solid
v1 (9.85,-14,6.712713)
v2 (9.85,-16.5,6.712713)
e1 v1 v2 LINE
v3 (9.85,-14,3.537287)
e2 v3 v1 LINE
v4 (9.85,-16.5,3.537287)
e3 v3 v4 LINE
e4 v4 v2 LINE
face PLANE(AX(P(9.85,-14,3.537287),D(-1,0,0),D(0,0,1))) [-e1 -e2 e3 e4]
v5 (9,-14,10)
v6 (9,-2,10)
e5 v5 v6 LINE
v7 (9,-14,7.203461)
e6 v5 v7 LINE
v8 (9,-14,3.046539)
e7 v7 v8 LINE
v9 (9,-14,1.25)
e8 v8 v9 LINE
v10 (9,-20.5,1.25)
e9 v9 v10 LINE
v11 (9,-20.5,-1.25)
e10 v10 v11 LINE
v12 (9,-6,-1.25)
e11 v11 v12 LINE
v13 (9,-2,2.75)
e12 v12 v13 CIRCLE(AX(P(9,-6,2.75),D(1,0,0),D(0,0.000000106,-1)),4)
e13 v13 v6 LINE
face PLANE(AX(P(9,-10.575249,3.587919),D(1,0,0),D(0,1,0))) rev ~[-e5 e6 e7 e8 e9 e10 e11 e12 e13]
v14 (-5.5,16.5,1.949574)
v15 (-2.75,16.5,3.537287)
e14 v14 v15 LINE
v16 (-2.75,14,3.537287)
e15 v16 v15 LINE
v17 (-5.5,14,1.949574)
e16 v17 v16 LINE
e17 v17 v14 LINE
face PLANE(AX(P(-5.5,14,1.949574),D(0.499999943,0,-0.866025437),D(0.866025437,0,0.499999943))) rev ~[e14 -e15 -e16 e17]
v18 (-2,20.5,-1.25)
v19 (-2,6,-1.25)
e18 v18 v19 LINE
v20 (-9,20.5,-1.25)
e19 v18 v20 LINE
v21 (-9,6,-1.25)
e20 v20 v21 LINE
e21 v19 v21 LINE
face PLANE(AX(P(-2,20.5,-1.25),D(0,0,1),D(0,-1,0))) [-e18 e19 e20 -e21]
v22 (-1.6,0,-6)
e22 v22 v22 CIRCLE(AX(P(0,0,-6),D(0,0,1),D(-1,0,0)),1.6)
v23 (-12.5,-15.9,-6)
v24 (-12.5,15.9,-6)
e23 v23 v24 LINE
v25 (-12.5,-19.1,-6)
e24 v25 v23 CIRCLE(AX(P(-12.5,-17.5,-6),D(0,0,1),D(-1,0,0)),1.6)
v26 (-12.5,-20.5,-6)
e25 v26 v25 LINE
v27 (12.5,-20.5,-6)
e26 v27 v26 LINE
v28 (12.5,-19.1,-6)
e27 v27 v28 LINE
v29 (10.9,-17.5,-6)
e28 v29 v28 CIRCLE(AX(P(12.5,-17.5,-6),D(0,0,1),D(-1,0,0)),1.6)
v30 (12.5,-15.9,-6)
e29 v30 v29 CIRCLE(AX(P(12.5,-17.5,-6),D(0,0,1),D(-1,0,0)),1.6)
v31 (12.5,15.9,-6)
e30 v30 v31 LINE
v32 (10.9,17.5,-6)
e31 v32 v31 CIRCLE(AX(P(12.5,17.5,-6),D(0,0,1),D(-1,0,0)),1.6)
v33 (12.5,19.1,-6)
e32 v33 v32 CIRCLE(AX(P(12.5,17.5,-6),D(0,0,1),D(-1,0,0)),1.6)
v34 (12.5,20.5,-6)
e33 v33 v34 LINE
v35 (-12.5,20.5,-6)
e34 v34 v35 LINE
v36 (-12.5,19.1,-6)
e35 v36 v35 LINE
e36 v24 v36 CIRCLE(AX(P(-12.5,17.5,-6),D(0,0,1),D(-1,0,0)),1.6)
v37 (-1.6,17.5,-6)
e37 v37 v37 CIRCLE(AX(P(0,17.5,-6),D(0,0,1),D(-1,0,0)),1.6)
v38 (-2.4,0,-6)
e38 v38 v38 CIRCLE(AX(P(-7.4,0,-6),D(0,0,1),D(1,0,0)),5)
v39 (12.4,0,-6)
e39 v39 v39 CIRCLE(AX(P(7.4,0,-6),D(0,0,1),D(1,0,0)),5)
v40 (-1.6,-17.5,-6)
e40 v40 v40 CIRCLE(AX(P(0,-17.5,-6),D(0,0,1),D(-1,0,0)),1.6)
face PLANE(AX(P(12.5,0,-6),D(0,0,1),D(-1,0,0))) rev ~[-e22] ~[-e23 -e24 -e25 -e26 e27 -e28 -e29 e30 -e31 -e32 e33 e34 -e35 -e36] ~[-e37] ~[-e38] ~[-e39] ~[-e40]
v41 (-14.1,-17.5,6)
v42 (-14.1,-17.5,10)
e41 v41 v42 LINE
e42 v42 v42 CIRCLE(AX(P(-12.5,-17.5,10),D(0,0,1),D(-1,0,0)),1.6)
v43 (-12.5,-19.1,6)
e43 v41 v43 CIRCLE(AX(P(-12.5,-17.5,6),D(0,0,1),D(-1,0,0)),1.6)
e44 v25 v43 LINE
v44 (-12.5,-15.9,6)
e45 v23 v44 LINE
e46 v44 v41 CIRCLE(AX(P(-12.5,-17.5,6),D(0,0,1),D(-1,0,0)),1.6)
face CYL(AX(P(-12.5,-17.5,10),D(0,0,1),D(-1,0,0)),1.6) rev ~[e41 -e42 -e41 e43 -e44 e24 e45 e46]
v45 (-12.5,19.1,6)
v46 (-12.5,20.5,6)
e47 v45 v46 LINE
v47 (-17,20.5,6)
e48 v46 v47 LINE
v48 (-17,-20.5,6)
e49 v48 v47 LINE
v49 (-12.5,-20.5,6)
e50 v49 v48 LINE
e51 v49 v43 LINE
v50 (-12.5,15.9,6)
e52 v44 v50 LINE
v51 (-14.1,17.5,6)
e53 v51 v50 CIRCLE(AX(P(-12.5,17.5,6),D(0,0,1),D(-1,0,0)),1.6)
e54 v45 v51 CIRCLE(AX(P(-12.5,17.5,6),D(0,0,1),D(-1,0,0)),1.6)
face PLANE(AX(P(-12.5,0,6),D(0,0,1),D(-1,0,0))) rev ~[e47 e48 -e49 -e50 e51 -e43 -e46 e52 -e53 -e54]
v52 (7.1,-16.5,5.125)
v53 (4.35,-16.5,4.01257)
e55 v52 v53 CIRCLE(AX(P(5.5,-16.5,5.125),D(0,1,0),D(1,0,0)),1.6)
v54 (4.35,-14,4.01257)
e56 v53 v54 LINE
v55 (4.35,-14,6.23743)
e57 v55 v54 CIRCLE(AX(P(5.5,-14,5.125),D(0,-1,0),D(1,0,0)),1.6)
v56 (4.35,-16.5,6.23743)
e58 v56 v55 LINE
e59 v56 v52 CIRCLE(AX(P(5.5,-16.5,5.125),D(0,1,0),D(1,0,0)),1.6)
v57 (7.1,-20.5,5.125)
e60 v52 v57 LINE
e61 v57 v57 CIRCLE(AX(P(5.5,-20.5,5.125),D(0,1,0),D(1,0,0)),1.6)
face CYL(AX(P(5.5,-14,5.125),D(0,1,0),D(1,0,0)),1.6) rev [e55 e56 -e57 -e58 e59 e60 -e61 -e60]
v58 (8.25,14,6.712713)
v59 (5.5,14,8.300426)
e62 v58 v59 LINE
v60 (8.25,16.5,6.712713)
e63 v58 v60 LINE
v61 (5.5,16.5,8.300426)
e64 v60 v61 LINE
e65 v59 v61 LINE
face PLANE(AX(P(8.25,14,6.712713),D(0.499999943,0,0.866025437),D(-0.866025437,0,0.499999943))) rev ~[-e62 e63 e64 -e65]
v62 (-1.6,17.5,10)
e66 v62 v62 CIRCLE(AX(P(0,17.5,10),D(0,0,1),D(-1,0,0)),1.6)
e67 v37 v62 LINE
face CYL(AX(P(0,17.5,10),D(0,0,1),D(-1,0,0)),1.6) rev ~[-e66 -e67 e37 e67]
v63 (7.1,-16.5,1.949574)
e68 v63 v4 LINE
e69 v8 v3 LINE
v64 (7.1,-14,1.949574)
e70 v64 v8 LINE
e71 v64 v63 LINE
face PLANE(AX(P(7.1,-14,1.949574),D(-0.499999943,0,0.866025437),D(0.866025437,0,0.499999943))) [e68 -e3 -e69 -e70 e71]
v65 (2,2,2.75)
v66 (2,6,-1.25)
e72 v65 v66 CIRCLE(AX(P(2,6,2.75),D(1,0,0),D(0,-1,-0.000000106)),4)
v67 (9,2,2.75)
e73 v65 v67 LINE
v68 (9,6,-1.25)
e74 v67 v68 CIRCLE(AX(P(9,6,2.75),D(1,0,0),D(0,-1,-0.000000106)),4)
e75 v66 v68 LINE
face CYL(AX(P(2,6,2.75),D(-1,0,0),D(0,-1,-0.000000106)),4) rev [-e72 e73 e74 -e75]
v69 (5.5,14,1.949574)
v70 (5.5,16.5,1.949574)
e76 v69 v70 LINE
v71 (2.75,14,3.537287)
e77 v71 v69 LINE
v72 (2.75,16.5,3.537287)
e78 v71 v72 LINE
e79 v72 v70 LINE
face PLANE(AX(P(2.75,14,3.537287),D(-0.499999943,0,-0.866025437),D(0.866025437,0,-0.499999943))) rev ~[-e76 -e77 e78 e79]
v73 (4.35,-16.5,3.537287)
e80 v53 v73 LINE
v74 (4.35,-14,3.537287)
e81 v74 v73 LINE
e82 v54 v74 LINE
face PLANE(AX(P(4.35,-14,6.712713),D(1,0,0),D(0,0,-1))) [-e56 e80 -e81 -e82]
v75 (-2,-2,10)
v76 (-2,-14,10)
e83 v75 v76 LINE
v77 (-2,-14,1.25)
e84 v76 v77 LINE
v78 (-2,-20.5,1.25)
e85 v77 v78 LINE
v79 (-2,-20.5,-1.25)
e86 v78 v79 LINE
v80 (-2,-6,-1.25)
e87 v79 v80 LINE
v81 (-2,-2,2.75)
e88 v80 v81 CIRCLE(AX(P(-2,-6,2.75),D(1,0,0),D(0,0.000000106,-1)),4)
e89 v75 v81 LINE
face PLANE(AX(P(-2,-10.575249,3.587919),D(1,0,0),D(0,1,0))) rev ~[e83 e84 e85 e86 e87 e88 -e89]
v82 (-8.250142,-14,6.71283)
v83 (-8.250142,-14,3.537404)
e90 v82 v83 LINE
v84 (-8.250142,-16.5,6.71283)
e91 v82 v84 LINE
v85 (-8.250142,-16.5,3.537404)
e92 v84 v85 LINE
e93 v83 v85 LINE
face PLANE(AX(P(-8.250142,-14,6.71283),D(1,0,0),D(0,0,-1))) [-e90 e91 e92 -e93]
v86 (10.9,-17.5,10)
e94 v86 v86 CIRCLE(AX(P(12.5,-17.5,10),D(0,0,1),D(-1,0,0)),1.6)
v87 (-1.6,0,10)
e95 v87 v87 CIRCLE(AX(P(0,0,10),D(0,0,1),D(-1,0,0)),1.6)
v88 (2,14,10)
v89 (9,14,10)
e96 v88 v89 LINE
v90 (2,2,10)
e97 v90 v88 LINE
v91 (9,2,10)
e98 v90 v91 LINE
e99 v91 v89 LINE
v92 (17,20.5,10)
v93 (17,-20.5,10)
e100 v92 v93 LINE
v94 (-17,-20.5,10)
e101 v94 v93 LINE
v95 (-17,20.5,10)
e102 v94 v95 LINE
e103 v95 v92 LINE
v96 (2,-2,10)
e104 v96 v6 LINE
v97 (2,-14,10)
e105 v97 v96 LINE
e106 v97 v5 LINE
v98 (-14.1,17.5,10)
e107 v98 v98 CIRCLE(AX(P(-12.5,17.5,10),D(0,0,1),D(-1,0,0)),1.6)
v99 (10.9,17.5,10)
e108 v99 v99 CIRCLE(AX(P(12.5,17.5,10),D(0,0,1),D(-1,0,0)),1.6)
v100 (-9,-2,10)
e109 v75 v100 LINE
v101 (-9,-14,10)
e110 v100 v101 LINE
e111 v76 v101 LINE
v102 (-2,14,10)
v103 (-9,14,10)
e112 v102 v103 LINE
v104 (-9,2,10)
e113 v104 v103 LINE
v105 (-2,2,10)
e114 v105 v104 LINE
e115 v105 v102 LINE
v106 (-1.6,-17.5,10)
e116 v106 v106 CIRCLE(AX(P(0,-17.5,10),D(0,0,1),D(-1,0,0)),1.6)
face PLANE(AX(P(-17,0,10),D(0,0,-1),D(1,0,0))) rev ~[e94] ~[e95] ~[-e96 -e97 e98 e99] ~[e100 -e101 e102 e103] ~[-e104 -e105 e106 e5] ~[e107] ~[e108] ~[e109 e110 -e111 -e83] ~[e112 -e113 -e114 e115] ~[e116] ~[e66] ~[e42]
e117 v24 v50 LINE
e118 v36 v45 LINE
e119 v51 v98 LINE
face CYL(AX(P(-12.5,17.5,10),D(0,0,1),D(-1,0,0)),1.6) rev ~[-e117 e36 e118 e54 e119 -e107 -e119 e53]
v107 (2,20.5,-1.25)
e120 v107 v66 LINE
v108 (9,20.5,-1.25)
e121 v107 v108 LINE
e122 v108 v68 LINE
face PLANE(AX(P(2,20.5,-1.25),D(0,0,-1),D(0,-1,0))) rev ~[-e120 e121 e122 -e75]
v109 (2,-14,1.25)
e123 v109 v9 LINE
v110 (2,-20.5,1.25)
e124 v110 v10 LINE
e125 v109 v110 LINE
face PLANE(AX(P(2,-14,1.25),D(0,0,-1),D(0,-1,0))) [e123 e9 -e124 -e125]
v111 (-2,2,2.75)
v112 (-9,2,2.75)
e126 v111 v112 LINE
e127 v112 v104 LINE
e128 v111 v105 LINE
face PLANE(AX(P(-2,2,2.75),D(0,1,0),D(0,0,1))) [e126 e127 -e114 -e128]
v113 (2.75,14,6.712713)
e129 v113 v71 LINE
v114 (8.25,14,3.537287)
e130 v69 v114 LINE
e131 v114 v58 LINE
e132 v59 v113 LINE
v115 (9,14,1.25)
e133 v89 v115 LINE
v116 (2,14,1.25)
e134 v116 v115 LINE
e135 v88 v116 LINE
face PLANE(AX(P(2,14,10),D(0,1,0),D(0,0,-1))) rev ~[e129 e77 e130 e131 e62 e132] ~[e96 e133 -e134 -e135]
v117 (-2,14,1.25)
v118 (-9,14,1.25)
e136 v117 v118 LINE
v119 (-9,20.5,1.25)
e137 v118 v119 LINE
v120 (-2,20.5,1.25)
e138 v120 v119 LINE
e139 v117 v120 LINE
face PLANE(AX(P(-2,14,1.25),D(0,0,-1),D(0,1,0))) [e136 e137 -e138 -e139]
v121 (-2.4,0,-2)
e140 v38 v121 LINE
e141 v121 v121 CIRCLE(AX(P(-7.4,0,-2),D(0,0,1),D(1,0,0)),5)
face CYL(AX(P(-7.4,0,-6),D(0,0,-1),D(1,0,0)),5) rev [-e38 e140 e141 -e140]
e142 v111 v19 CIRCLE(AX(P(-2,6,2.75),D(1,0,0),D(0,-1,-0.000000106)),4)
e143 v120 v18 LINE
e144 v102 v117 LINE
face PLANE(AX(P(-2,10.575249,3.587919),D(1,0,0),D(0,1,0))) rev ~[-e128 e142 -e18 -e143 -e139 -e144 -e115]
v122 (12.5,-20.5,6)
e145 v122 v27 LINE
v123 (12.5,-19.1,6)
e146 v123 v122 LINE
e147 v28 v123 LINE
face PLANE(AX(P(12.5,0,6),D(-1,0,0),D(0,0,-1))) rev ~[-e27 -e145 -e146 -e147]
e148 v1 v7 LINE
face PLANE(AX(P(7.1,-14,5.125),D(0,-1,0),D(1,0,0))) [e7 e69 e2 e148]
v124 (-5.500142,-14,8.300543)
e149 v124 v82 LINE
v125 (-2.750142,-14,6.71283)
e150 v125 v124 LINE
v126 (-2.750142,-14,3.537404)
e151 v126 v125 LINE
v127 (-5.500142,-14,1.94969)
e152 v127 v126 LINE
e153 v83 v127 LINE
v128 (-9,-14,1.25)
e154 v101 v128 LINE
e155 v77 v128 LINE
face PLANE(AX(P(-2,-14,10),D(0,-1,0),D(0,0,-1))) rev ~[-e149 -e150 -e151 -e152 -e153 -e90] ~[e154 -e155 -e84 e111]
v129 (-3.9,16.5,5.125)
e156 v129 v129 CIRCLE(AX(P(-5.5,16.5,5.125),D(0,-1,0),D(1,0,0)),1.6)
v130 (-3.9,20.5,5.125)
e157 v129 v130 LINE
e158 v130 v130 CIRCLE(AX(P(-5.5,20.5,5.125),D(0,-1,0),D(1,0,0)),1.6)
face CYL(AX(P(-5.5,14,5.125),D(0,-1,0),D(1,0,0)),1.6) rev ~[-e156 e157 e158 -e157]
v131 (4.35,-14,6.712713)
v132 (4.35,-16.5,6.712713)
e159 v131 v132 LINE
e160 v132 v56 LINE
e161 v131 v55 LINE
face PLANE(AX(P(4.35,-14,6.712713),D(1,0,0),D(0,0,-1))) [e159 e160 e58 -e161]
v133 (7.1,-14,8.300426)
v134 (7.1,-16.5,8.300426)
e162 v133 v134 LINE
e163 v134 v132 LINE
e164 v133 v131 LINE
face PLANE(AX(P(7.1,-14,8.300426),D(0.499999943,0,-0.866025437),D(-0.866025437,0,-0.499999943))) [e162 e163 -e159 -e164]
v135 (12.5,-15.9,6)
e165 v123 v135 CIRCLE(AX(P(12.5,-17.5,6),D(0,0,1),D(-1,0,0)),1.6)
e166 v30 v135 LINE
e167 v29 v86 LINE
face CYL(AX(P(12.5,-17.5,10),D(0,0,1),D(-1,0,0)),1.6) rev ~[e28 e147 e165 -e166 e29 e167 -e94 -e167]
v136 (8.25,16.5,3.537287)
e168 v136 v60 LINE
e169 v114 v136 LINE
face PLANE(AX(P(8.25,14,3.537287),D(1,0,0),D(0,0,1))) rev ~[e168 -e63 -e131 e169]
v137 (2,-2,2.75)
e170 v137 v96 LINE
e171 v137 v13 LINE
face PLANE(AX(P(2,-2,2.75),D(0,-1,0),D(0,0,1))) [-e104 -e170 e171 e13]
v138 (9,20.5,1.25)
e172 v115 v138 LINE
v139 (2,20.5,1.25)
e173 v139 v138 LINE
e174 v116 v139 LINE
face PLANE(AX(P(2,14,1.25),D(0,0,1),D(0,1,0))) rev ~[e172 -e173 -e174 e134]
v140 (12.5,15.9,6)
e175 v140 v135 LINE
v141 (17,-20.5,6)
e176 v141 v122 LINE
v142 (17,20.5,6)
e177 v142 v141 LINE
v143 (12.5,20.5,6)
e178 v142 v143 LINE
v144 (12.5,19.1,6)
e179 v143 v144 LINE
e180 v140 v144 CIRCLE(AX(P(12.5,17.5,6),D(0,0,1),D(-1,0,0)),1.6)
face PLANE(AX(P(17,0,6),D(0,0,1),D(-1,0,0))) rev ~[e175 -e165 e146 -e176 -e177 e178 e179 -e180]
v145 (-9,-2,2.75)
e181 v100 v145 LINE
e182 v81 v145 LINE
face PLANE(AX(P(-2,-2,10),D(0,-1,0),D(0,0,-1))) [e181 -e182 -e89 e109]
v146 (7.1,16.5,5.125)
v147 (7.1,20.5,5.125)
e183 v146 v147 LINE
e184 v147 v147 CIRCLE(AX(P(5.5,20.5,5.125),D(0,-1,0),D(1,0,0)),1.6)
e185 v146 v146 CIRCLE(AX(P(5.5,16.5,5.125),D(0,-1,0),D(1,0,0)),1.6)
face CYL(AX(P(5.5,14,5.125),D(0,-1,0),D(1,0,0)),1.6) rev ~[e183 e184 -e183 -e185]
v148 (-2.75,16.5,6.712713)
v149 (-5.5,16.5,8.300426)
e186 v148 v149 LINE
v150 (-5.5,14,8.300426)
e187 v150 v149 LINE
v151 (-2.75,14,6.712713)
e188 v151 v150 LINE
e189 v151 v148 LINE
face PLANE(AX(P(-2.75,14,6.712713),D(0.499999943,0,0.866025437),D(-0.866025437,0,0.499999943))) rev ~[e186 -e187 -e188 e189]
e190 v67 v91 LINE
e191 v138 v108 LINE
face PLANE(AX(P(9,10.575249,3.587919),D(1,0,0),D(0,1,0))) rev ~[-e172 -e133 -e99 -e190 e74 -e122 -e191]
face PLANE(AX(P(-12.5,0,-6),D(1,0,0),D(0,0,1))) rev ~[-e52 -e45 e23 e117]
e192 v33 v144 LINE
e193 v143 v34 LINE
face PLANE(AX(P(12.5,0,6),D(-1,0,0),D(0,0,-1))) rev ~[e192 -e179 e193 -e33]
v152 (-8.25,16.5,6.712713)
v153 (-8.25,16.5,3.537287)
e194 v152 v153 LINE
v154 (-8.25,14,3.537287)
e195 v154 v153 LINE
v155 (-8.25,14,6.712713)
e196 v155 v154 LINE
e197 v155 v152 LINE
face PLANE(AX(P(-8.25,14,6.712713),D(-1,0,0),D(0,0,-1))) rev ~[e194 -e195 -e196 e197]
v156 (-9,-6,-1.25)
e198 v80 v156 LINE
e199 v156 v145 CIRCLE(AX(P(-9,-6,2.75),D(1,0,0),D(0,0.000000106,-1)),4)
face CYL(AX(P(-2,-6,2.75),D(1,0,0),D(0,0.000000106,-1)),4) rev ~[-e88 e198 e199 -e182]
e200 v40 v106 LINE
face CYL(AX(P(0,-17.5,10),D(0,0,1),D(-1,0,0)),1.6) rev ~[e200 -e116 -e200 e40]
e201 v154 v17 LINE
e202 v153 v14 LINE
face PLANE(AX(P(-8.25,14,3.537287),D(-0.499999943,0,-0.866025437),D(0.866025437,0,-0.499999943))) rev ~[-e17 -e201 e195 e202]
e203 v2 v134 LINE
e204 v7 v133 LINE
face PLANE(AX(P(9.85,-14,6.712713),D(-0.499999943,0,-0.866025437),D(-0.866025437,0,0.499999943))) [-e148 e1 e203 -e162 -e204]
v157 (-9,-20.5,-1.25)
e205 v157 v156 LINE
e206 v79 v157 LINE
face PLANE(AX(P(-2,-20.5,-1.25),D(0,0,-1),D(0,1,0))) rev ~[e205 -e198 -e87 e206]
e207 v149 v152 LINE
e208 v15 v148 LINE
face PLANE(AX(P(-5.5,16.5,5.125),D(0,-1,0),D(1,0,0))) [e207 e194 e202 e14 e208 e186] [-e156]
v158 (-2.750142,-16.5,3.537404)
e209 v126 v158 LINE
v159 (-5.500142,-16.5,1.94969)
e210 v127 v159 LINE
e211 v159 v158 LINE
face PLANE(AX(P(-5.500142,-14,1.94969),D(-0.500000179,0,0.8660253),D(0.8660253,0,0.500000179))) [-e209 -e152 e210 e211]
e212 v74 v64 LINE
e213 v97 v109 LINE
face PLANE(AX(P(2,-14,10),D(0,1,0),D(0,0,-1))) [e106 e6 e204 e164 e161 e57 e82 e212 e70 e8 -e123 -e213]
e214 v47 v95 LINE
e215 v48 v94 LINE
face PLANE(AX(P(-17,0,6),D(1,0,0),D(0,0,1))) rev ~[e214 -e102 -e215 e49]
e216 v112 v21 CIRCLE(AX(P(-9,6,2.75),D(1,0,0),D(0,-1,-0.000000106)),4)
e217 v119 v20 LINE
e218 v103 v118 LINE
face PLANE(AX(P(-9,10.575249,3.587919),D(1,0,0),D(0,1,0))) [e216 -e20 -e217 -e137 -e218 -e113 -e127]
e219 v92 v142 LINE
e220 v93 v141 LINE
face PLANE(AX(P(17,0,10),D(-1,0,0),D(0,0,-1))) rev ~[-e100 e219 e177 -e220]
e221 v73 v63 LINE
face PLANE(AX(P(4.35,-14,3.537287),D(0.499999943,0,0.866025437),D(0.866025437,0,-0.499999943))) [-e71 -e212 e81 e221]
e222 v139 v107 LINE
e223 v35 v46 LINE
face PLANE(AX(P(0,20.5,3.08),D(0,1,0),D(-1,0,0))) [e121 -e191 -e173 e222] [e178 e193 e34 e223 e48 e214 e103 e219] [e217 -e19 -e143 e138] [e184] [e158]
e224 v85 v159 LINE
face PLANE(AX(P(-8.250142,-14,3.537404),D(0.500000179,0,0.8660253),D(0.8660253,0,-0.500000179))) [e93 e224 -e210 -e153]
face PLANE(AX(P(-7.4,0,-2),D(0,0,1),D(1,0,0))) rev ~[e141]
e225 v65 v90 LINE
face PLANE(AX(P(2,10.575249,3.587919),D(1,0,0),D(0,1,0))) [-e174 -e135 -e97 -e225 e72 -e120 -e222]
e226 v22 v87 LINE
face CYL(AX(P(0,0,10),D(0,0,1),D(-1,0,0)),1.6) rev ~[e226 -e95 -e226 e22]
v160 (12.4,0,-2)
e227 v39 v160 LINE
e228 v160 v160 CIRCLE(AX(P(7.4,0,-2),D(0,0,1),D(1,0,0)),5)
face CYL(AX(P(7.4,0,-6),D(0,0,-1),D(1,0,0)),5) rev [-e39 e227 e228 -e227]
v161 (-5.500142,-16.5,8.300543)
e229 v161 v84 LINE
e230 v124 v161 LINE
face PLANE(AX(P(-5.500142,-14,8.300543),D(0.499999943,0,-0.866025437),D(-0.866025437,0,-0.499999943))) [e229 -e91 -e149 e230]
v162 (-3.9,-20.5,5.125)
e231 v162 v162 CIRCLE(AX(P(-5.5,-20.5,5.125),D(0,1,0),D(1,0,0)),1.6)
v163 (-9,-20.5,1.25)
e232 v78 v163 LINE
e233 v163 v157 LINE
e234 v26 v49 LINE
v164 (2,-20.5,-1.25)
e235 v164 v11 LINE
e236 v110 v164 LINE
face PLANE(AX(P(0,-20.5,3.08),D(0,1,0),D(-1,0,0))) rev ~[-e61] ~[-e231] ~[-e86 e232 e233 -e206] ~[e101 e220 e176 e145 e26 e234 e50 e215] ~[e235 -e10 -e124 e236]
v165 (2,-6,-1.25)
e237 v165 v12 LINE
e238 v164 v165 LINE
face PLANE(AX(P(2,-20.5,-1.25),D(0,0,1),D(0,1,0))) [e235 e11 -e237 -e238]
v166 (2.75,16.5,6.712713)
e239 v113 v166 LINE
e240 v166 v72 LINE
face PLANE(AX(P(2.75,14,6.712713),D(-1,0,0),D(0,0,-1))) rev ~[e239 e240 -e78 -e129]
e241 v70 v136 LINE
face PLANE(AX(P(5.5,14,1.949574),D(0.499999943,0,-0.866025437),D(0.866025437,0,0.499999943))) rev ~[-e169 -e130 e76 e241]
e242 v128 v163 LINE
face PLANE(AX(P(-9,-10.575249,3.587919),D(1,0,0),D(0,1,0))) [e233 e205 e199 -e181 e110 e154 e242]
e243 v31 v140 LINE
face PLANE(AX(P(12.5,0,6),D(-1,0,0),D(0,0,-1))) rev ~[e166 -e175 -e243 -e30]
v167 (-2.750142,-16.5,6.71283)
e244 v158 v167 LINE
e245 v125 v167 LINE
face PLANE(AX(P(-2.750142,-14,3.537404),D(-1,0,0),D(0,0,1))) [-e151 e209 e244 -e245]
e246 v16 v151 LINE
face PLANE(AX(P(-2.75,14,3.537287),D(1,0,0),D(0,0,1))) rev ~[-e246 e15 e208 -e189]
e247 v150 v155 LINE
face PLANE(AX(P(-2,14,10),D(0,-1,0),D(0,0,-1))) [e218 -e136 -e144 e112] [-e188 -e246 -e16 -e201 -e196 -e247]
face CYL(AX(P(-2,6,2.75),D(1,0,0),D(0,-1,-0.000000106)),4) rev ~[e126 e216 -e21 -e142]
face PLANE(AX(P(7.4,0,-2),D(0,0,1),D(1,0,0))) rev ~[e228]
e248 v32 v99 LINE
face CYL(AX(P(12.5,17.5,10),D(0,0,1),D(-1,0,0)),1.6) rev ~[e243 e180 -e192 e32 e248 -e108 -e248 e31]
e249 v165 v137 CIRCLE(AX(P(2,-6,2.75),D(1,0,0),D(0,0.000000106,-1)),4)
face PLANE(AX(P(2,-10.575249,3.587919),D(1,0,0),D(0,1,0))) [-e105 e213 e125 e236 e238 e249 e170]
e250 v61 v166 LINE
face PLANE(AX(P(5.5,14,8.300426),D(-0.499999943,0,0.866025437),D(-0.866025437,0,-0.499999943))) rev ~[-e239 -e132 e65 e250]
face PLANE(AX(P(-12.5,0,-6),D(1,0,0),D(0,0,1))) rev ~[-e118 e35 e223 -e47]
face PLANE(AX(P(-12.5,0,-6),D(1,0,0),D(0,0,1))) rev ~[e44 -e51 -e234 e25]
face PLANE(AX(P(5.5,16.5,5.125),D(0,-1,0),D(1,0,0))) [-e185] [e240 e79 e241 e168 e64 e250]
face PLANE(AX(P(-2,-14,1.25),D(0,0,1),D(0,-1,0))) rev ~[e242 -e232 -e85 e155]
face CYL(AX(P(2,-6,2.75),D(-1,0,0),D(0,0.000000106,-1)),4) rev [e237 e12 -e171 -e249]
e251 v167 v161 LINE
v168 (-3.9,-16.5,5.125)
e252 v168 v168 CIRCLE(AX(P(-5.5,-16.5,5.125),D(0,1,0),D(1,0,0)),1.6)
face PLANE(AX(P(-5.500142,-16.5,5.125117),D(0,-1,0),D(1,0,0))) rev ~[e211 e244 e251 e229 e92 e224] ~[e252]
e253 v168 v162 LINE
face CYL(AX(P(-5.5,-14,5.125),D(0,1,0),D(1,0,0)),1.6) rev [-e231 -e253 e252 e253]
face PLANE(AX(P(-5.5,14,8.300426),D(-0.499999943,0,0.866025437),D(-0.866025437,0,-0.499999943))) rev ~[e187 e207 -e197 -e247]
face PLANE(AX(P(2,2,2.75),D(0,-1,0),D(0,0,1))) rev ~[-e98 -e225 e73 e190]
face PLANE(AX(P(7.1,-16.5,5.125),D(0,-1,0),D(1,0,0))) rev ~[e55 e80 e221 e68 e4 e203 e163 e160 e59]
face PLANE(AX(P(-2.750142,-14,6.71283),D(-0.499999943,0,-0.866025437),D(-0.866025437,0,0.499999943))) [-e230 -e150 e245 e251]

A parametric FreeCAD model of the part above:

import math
import FreeCAD as App
import Part
import Sketcher

V = App.Vector
Q = App.Units.Quantity


def add_polygon(sketch, points):
    """Adds a closed chain of lines whose ends are joined by coincident constraints."""
    first, n = sketch.GeometryCount, len(points)
    for a, b in zip(points, points[1:] + points[:1]):
        sketch.addGeometry(Part.LineSegment(App.Vector(*a, 0), App.Vector(*b, 0)), False)
    for i in range(n):
        sketch.addConstraint(Sketcher.Constraint("Coincident", first + i, 2, first + (i + 1) % n, 1))

doc = App.newDocument("Part")
body = doc.addObject("PartDesign::Body", "Body")

# Sketch on XZ plane
sketch1 = doc.addObject("Sketcher::SketchObject", "Sketch")
body.addObject(sketch1)
sketch1.AttachmentSupport = (doc.XZ_Plane, [""])
sketch1.MapMode = "FlatFace"
add_polygon(sketch1, [(12.5, -6), (12.5, 6), (17, 6), (17, 10), (-17, 10), (-17, 6), (-12.5, 6), (-12.5, -6)])  # lines 0-7
sketch1.addConstraint(Sketcher.Constraint("Vertical", 0))
sketch1.addConstraint(Sketcher.Constraint("Horizontal", 1))
sketch1.addConstraint(Sketcher.Constraint("Vertical", 2))
sketch1.addConstraint(Sketcher.Constraint("Horizontal", 3))
sketch1.addConstraint(Sketcher.Constraint("Vertical", 4))
sketch1.addConstraint(Sketcher.Constraint("Horizontal", 5))
sketch1.addConstraint(Sketcher.Constraint("Vertical", 6))
sketch1.addConstraint(Sketcher.Constraint("Horizontal", 7))
sketch1.addConstraint(Sketcher.Constraint("Symmetric", 0, 2, 6, 2, -1, 1))
sketch1.addConstraint(Sketcher.Constraint("Symmetric", 1, 2, 4, 2, -2))
sketch1.addConstraint(Sketcher.Constraint("DistanceX", 3, 2, 3, 1, 34.0))
sketch1.addConstraint(Sketcher.Constraint("DistanceX", 7, 1, 7, 2, 25.0))
sketch1.addConstraint(Sketcher.Constraint("DistanceY", 0, 1, 0, 2, 12.0))
sketch1.addConstraint(Sketcher.Constraint("DistanceY", 2, 1, 2, 2, 4.0))
pad1 = doc.addObject("PartDesign::Pad", "Pad")
body.addObject(pad1)
pad1.Profile = sketch1
pad1.Length = 41
pad1.Midplane = True

# Sketch on XY plane
sketch2 = doc.addObject("Sketcher::SketchObject", "Sketch001")
body.addObject(sketch2)
sketch2.AttachmentSupport = (doc.XY_Plane, [""])
sketch2.MapMode = "FlatFace"
sketch2.AttachmentOffset = App.Placement(V(0, 0, 10), App.Rotation())
sketch2.addGeometry(Part.Circle(V(12.5, -17.5, 0), V(0, 0, 1), 1.6), False)
sketch2.addGeometry(Part.Circle(V(-12.5, -17.5, 0), V(0, 0, 1), 1.6), False)
sketch2.addGeometry(Part.Circle(V(0, -17.5, 0), V(0, 0, 1), 1.6), False)
sketch2.addGeometry(Part.Circle(V(12.5, 17.5, 0), V(0, 0, 1), 1.6), False)
sketch2.addGeometry(Part.Circle(V(-12.5, 17.5, 0), V(0, 0, 1), 1.6), False)
sketch2.addGeometry(Part.Circle(V(0, 0, 0), V(0, 0, 1), 1.6), False)
sketch2.addGeometry(Part.Circle(V(0, 17.5, 0), V(0, 0, 1), 1.6), False)
sketch2.addConstraint(Sketcher.Constraint("Coincident", 5, 3, -1, 1))
sketch2.addConstraint(Sketcher.Constraint("Equal", 0, 1))
sketch2.addConstraint(Sketcher.Constraint("Equal", 1, 2))
sketch2.addConstraint(Sketcher.Constraint("Equal", 2, 3))
sketch2.addConstraint(Sketcher.Constraint("Equal", 3, 4))
sketch2.addConstraint(Sketcher.Constraint("Equal", 4, 5))
sketch2.addConstraint(Sketcher.Constraint("Equal", 5, 6))
sketch2.addConstraint(Sketcher.Constraint("Symmetric", 1, 3, 3, 3, -1, 1))
sketch2.addConstraint(Sketcher.Constraint("Symmetric", 0, 3, 4, 3, -1, 1))
sketch2.addConstraint(Sketcher.Constraint("Symmetric", 2, 3, 6, 3, -1, 1))
sketch2.addConstraint(Sketcher.Constraint("Symmetric", 0, 3, 1, 3, -2))
sketch2.addConstraint(Sketcher.Constraint("PointOnObject", 2, 3, -2))
sketch2.addConstraint(Sketcher.Constraint("Horizontal", 1, 3, 2, 3))
sketch2.addConstraint(Sketcher.Constraint("Diameter", 0, 3.2))
sketch2.addConstraint(Sketcher.Constraint("DistanceX", 1, 3, 0, 3, 25.0))
sketch2.addConstraint(Sketcher.Constraint("DistanceY", 0, 3, 3, 3, 35.0))
pocket1 = doc.addObject("PartDesign::Pocket", "Pocket")
body.addObject(pocket1)
pocket1.Profile = sketch2
pocket1.Type = "ThroughAll"
pocket1.Midplane = True

# Sketch on YZ plane
sketch3 = doc.addObject("Sketcher::SketchObject", "Sketch002")
body.addObject(sketch3)
sketch3.AttachmentSupport = (doc.YZ_Plane, [""])
sketch3.MapMode = "FlatFace"
sketch3.AttachmentOffset = App.Placement(V(0, 0, 2), App.Rotation())
sketch3.addGeometry(Part.ArcOfCircle(Part.Circle(V(-6, 2.8, 0), V(0, 0, 1), 4), math.radians(-90), math.radians(0)), False)
sketch3.addGeometry(Part.LineSegment(V(-2, 2.8, 0), V(-2, 10, 0)), False)
sketch3.addGeometry(Part.LineSegment(V(-2, 10, 0), V(-14, 10, 0)), False)
sketch3.addGeometry(Part.LineSegment(V(-14, 10, 0), V(-14, 1.2, 0)), False)
sketch3.addGeometry(Part.LineSegment(V(-14, 1.2, 0), V(-20.5, 1.2, 0)), False)
sketch3.addGeometry(Part.LineSegment(V(-20.5, 1.2, 0), V(-20.5, -1.2, 0)), False)
sketch3.addGeometry(Part.LineSegment(V(-20.5, -1.2, 0), V(-6, -1.2, 0)), False)
sketch3.addGeometry(Part.ArcOfCircle(Part.Circle(V(6, 2.8, 0), V(0, 0, 1), 4), math.radians(-180), math.radians(-90)), False)
sketch3.addGeometry(Part.LineSegment(V(6, -1.2, 0), V(20.5, -1.2, 0)), False)
sketch3.addGeometry(Part.LineSegment(V(20.5, -1.2, 0), V(20.5, 1.2, 0)), False)
sketch3.addGeometry(Part.LineSegment(V(20.5, 1.2, 0), V(14, 1.2, 0)), False)
sketch3.addGeometry(Part.LineSegment(V(14, 1.2, 0), V(14, 10, 0)), False)
sketch3.addGeometry(Part.LineSegment(V(14, 10, 0), V(2, 10, 0)), False)
sketch3.addGeometry(Part.LineSegment(V(2, 10, 0), V(2, 2.8, 0)), False)
sketch3.addConstraint(Sketcher.Constraint("Tangent", 0, 2, 1, 1))
sketch3.addConstraint(Sketcher.Constraint("Coincident", 1, 2, 2, 1))
sketch3.addConstraint(Sketcher.Constraint("Coincident", 2, 2, 3, 1))
sketch3.addConstraint(Sketcher.Constraint("Coincident", 3, 2, 4, 1))
sketch3.addConstraint(Sketcher.Constraint("Coincident", 4, 2, 5, 1))
sketch3.addConstraint(Sketcher.Constraint("Coincident", 5, 2, 6, 1))
sketch3.addConstraint(Sketcher.Constraint("Tangent", 6, 2, 0, 1))
sketch3.addConstraint(Sketcher.Constraint("Tangent", 7, 2, 8, 1))
sketch3.addConstraint(Sketcher.Constraint("Coincident", 8, 2, 9, 1))
sketch3.addConstraint(Sketcher.Constraint("Coincident", 9, 2, 10, 1))
sketch3.addConstraint(Sketcher.Constraint("Coincident", 10, 2, 11, 1))
sketch3.addConstraint(Sketcher.Constraint("Coincident", 11, 2, 12, 1))
sketch3.addConstraint(Sketcher.Constraint("Coincident", 12, 2, 13, 1))
sketch3.addConstraint(Sketcher.Constraint("Tangent", 13, 2, 7, 1))
sketch3.addConstraint(Sketcher.Constraint("Vertical", 1))
sketch3.addConstraint(Sketcher.Constraint("Horizontal", 2))
sketch3.addConstraint(Sketcher.Constraint("Vertical", 3))
sketch3.addConstraint(Sketcher.Constraint("Horizontal", 4))
sketch3.addConstraint(Sketcher.Constraint("Vertical", 5))
sketch3.addConstraint(Sketcher.Constraint("Horizontal", 6))
sketch3.addConstraint(Sketcher.Constraint("Horizontal", 8))
sketch3.addConstraint(Sketcher.Constraint("Vertical", 9))
sketch3.addConstraint(Sketcher.Constraint("Horizontal", 10))
sketch3.addConstraint(Sketcher.Constraint("Vertical", 11))
sketch3.addConstraint(Sketcher.Constraint("Horizontal", 12))
sketch3.addConstraint(Sketcher.Constraint("Vertical", 13))
sketch3.addConstraint(Sketcher.Constraint("Equal", 0, 7))
sketch3.addConstraint(Sketcher.Constraint("Symmetric", 4, 2, 8, 2, -1, 1))
sketch3.addConstraint(Sketcher.Constraint("Symmetric", 0, 3, 7, 3, -2))
sketch3.addConstraint(Sketcher.Constraint("Symmetric", 3, 2, 10, 2, -2))
sketch3.addConstraint(Sketcher.Constraint("Horizontal", 2, 2, 11, 2))
sketch3.addConstraint(Sketcher.Constraint("Radius", 0, 4.0))
sketch3.addConstraint(Sketcher.Constraint("DistanceX", 2, 2, 2, 1, 12.0))
sketch3.addConstraint(Sketcher.Constraint("DistanceX", 4, 2, 4, 1, 6.5))
sketch3.addConstraint(Sketcher.Constraint("DistanceY", 5, 2, 5, 1, 2.5))
sketch3.addConstraint(Sketcher.Constraint("DistanceX", 0, 3, -1, 1, 6.0))
sketch3.addConstraint(Sketcher.Constraint("DistanceY", -1, 1, 1, 2, 10.0))
pocket2 = doc.addObject("PartDesign::Pocket", "Pocket001")
body.addObject(pocket2)
pocket2.Profile = sketch3
pocket2.Length = 7
pocket2.Reversed = True

# Sketch on XY plane
sketch4 = doc.addObject("Sketcher::SketchObject", "Sketch003")
body.addObject(sketch4)
sketch4.AttachmentSupport = (doc.XY_Plane, [""])
sketch4.MapMode = "FlatFace"
sketch4.AttachmentOffset = App.Placement(V(0, 0, 10), App.Rotation())
sketch4.addGeometry(Part.Circle(V(12.5, -17.5, 0), V(0, 0, 1), 1.6), False)
sketch4.addGeometry(Part.Circle(V(-12.5, -17.5, 0), V(0, 0, 1), 1.6), False)
sketch4.addGeometry(Part.Circle(V(0, -17.5, 0), V(0, 0, 1), 1.6), False)
sketch4.addGeometry(Part.Circle(V(12.5, 17.5, 0), V(0, 0, 1), 1.6), False)
sketch4.addGeometry(Part.Circle(V(-12.5, 17.5, 0), V(0, 0, 1), 1.6), False)
sketch4.addGeometry(Part.Circle(V(0, 0, 0), V(0, 0, 1), 1.6), False)
sketch4.addGeometry(Part.Circle(V(0, 17.5, 0), V(0, 0, 1), 1.6), False)
sketch4.addConstraint(Sketcher.Constraint("Coincident", 5, 3, -1, 1))
sketch4.addConstraint(Sketcher.Constraint("Equal", 0, 1))
sketch4.addConstraint(Sketcher.Constraint("Equal", 1, 2))
sketch4.addConstraint(Sketcher.Constraint("Equal", 2, 3))
sketch4.addConstraint(Sketcher.Constraint("Equal", 3, 4))
sketch4.addConstraint(Sketcher.Constraint("Equal", 4, 5))
sketch4.addConstraint(Sketcher.Constraint("Equal", 5, 6))
sketch4.addConstraint(Sketcher.Constraint("Symmetric", 1, 3, 3, 3, -1, 1))
sketch4.addConstraint(Sketcher.Constraint("Symmetric", 0, 3, 4, 3, -1, 1))
sketch4.addConstraint(Sketcher.Constraint("Symmetric", 2, 3, 6, 3, -1, 1))
sketch4.addConstraint(Sketcher.Constraint("Symmetric", 0, 3, 1, 3, -2))
sketch4.addConstraint(Sketcher.Constraint("PointOnObject", 2, 3, -2))
sketch4.addConstraint(Sketcher.Constraint("Horizontal", 1, 3, 2, 3))
sketch4.addConstraint(Sketcher.Constraint("Diameter", 0, 3.2))
sketch4.addConstraint(Sketcher.Constraint("DistanceX", 1, 3, 0, 3, 25.0))
sketch4.addConstraint(Sketcher.Constraint("DistanceY", 0, 3, 3, 3, 35.0))
pocket3 = doc.addObject("PartDesign::Pocket", "Pocket002")
body.addObject(pocket3)
pocket3.Profile = sketch4
pocket3.Length = 1

# Sketch on YZ plane
sketch5 = doc.addObject("Sketcher::SketchObject", "Sketch004")
body.addObject(sketch5)
sketch5.AttachmentSupport = (doc.YZ_Plane, [""])
sketch5.MapMode = "FlatFace"
sketch5.AttachmentOffset = App.Placement(V(0, 0, -2), App.Rotation())
sketch5.addGeometry(Part.ArcOfCircle(Part.Circle(V(-6, 2.8, 0), V(0, 0, 1), 4), math.radians(-90), math.radians(0)), False)
sketch5.addGeometry(Part.LineSegment(V(-2, 2.8, 0), V(-2, 10, 0)), False)
sketch5.addGeometry(Part.LineSegment(V(-2, 10, 0), V(-14, 10, 0)), False)
sketch5.addGeometry(Part.LineSegment(V(-14, 10, 0), V(-14, 1.2, 0)), False)
sketch5.addGeometry(Part.LineSegment(V(-14, 1.2, 0), V(-20.5, 1.2, 0)), False)
sketch5.addGeometry(Part.LineSegment(V(-20.5, 1.2, 0), V(-20.5, -1.2, 0)), False)
sketch5.addGeometry(Part.LineSegment(V(-20.5, -1.2, 0), V(-6, -1.2, 0)), False)
sketch5.addGeometry(Part.ArcOfCircle(Part.Circle(V(6, 2.8, 0), V(0, 0, 1), 4), math.radians(-180), math.radians(-90)), False)
sketch5.addGeometry(Part.LineSegment(V(6, -1.2, 0), V(20.5, -1.2, 0)), False)
sketch5.addGeometry(Part.LineSegment(V(20.5, -1.2, 0), V(20.5, 1.2, 0)), False)
sketch5.addGeometry(Part.LineSegment(V(20.5, 1.2, 0), V(14, 1.2, 0)), False)
sketch5.addGeometry(Part.LineSegment(V(14, 1.2, 0), V(14, 10, 0)), False)
sketch5.addGeometry(Part.LineSegment(V(14, 10, 0), V(2, 10, 0)), False)
sketch5.addGeometry(Part.LineSegment(V(2, 10, 0), V(2, 2.8, 0)), False)
sketch5.addConstraint(Sketcher.Constraint("Tangent", 0, 2, 1, 1))
sketch5.addConstraint(Sketcher.Constraint("Coincident", 1, 2, 2, 1))
sketch5.addConstraint(Sketcher.Constraint("Coincident", 2, 2, 3, 1))
sketch5.addConstraint(Sketcher.Constraint("Coincident", 3, 2, 4, 1))
sketch5.addConstraint(Sketcher.Constraint("Coincident", 4, 2, 5, 1))
sketch5.addConstraint(Sketcher.Constraint("Coincident", 5, 2, 6, 1))
sketch5.addConstraint(Sketcher.Constraint("Tangent", 6, 2, 0, 1))
sketch5.addConstraint(Sketcher.Constraint("Tangent", 7, 2, 8, 1))
sketch5.addConstraint(Sketcher.Constraint("Coincident", 8, 2, 9, 1))
sketch5.addConstraint(Sketcher.Constraint("Coincident", 9, 2, 10, 1))
sketch5.addConstraint(Sketcher.Constraint("Coincident", 10, 2, 11, 1))
sketch5.addConstraint(Sketcher.Constraint("Coincident", 11, 2, 12, 1))
sketch5.addConstraint(Sketcher.Constraint("Coincident", 12, 2, 13, 1))
sketch5.addConstraint(Sketcher.Constraint("Tangent", 13, 2, 7, 1))
sketch5.addConstraint(Sketcher.Constraint("Vertical", 1))
sketch5.addConstraint(Sketcher.Constraint("Horizontal", 2))
sketch5.addConstraint(Sketcher.Constraint("Vertical", 3))
sketch5.addConstraint(Sketcher.Constraint("Horizontal", 4))
sketch5.addConstraint(Sketcher.Constraint("Vertical", 5))
sketch5.addConstraint(Sketcher.Constraint("Horizontal", 6))
sketch5.addConstraint(Sketcher.Constraint("Horizontal", 8))
sketch5.addConstraint(Sketcher.Constraint("Vertical", 9))
sketch5.addConstraint(Sketcher.Constraint("Horizontal", 10))
sketch5.addConstraint(Sketcher.Constraint("Vertical", 11))
sketch5.addConstraint(Sketcher.Constraint("Horizontal", 12))
sketch5.addConstraint(Sketcher.Constraint("Vertical", 13))
sketch5.addConstraint(Sketcher.Constraint("Equal", 0, 7))
sketch5.addConstraint(Sketcher.Constraint("Symmetric", 4, 2, 8, 2, -1, 1))
sketch5.addConstraint(Sketcher.Constraint("Symmetric", 0, 3, 7, 3, -2))
sketch5.addConstraint(Sketcher.Constraint("Symmetric", 3, 2, 10, 2, -2))
sketch5.addConstraint(Sketcher.Constraint("Horizontal", 2, 2, 11, 2))
sketch5.addConstraint(Sketcher.Constraint("Radius", 0, 4.0))
sketch5.addConstraint(Sketcher.Constraint("DistanceX", 2, 2, 2, 1, 12.0))
sketch5.addConstraint(Sketcher.Constraint("DistanceX", 4, 2, 4, 1, 6.5))
sketch5.addConstraint(Sketcher.Constraint("DistanceY", 5, 2, 5, 1, 2.5))
sketch5.addConstraint(Sketcher.Constraint("DistanceX", 0, 3, -1, 1, 6.0))
sketch5.addConstraint(Sketcher.Constraint("DistanceY", -1, 1, 1, 2, 10.0))
pocket4 = doc.addObject("PartDesign::Pocket", "Pocket003")
body.addObject(pocket4)
pocket4.Profile = sketch5
pocket4.Length = 7

# Sketch on XZ plane
sketch6 = doc.addObject("Sketcher::SketchObject", "Sketch005")
body.addObject(sketch6)
sketch6.AttachmentSupport = (doc.XZ_Plane, [""])
sketch6.MapMode = "FlatFace"
sketch6.AttachmentOffset = App.Placement(V(0, 0, 14), App.Rotation())
sketch6.addGeometry(Part.Circle(V(-5.5, 5.1, 0), V(0, 0, 1), 1.6), False)
sketch6.addGeometry(Part.Circle(V(5.5, 5.1, 0), V(0, 0, 1), 1.6), False)
sketch6.addConstraint(Sketcher.Constraint("Equal", 0, 1))
sketch6.addConstraint(Sketcher.Constraint("Symmetric", 0, 3, 1, 3, -2))
sketch6.addConstraint(Sketcher.Constraint("Diameter", 0, 3.2))
sketch6.addConstraint(Sketcher.Constraint("DistanceX", 0, 3, 1, 3, 11.0))
sketch6.addConstraint(Sketcher.Constraint("DistanceY", -1, 1, 0, 3, 5.125))
pocket5 = doc.addObject("PartDesign::Pocket", "Pocket004")
body.addObject(pocket5)
pocket5.Profile = sketch6
pocket5.Type = "ThroughAll"
pocket5.Reversed = True

# Sketch on XZ plane
sketch7 = doc.addObject("Sketcher::SketchObject", "Sketch006")
body.addObject(sketch7)
sketch7.AttachmentSupport = (doc.XZ_Plane, [""])
sketch7.MapMode = "FlatFace"
sketch7.AttachmentOffset = App.Placement(V(0, 0, 14), App.Rotation())
add_polygon(sketch7, [(-2.8, 3.5), (-2.8, 6.7), (-5.5, 8.3), (-8.3, 6.7), (-8.3, 3.5), (-5.5, 1.9)])  # lines 0-5
add_polygon(sketch7, [(9.8, 3.5), (9.8, 6.7), (7.1, 8.3), (4.3, 6.7), (4.3, 3.5), (7.1, 1.9)])  # lines 6-11
sketch7.addConstraint(Sketcher.Constraint("Vertical", 0))
sketch7.addConstraint(Sketcher.Constraint("Vertical", 3))
sketch7.addConstraint(Sketcher.Constraint("Vertical", 6))
sketch7.addConstraint(Sketcher.Constraint("Vertical", 9))
sketch7.addConstraint(Sketcher.Constraint("Parallel", 1, 4))
sketch7.addConstraint(Sketcher.Constraint("Parallel", 2, 5))
sketch7.addConstraint(Sketcher.Constraint("Parallel", 4, 7))
sketch7.addConstraint(Sketcher.Constraint("Parallel", 5, 8))
sketch7.addConstraint(Sketcher.Constraint("Parallel", 7, 10))
sketch7.addConstraint(Sketcher.Constraint("Parallel", 8, 11))
sketch7.addConstraint(Sketcher.Constraint("Horizontal", 0, 2, 2, 2))
sketch7.addConstraint(Sketcher.Constraint("Horizontal", 3, 2, 5, 2))
sketch7.addConstraint(Sketcher.Constraint("Horizontal", 6, 2, 8, 2))
sketch7.addConstraint(Sketcher.Constraint("Horizontal", 9, 2, 11, 2))
sketch7.addConstraint(Sketcher.Constraint("Vertical", 1, 2, 4, 2))
sketch7.addConstraint(Sketcher.Constraint("Equal", 3, 6))
sketch7.addConstraint(Sketcher.Constraint("Equal", 5, 7))
sketch7.addConstraint(Sketcher.Constraint("Angle", 1, Q("150.000004 deg")))
sketch7.addConstraint(Sketcher.Constraint("DistanceX", -1, 1, 7, 2, 7.1))
sketch7.addConstraint(Sketcher.Constraint("DistanceX", 2, 2, 0, 2, 5.5))
sketch7.addConstraint(Sketcher.Constraint("DistanceY", 0, 1, 0, 2, 3.175426))
sketch7.addConstraint(Sketcher.Constraint("DistanceX", 0, 2, -1, 1, 2.750142))
sketch7.addConstraint(Sketcher.Constraint("DistanceY", -1, 1, 0, 2, 6.71283))
sketch7.addConstraint(Sketcher.Constraint("DistanceY", 5, 2, 6, 2, 3.175309))
pocket6 = doc.addObject("PartDesign::Pocket", "Pocket005")
body.addObject(pocket6)
pocket6.Profile = sketch7
pocket6.Length = 2.5
pocket6.Reversed = True

# Sketch on XZ plane
sketch8 = doc.addObject("Sketcher::SketchObject", "Sketch007")
body.addObject(sketch8)
sketch8.AttachmentSupport = (doc.XZ_Plane, [""])
sketch8.MapMode = "FlatFace"
sketch8.AttachmentOffset = App.Placement(V(0, 0, -14), App.Rotation())
sketch8.addGeometry(Part.Circle(V(-5.5, 5.1, 0), V(0, 0, 1), 1.6), False)
sketch8.addGeometry(Part.Circle(V(5.5, 5.1, 0), V(0, 0, 1), 1.6), False)
sketch8.addConstraint(Sketcher.Constraint("Equal", 0, 1))
sketch8.addConstraint(Sketcher.Constraint("Symmetric", 0, 3, 1, 3, -2))
sketch8.addConstraint(Sketcher.Constraint("Diameter", 0, 3.2))
sketch8.addConstraint(Sketcher.Constraint("DistanceX", 0, 3, 1, 3, 11.0))
sketch8.addConstraint(Sketcher.Constraint("DistanceY", -1, 1, 0, 3, 5.125))
pocket7 = doc.addObject("PartDesign::Pocket", "Pocket006")
body.addObject(pocket7)
pocket7.Profile = sketch8
pocket7.Type = "ThroughAll"

# Sketch on XZ plane
sketch9 = doc.addObject("Sketcher::SketchObject", "Sketch008")
body.addObject(sketch9)
sketch9.AttachmentSupport = (doc.XZ_Plane, [""])
sketch9.MapMode = "FlatFace"
sketch9.AttachmentOffset = App.Placement(V(0, 0, -14), App.Rotation())
add_polygon(sketch9, [(-2.8, 3.5), (-2.8, 6.7), (-5.5, 8.3), (-8.2, 6.7), (-8.2, 3.5), (-5.5, 1.9)])  # lines 0-5
add_polygon(sketch9, [(8.2, 3.5), (8.2, 6.7), (5.5, 8.3), (2.8, 6.7), (2.8, 3.5), (5.5, 1.9)])  # lines 6-11
sketch9.addConstraint(Sketcher.Constraint("Vertical", 0))
sketch9.addConstraint(Sketcher.Constraint("Vertical", 3))
sketch9.addConstraint(Sketcher.Constraint("Vertical", 6))
sketch9.addConstraint(Sketcher.Constraint("Vertical", 9))
sketch9.addConstraint(Sketcher.Constraint("Symmetric", 2, 2, 6, 2, -2))
sketch9.addConstraint(Sketcher.Constraint("Symmetric", 1, 2, 7, 2, -2))
sketch9.addConstraint(Sketcher.Constraint("Symmetric", 0, 2, 8, 2, -2))
sketch9.addConstraint(Sketcher.Constraint("Symmetric", 4, 2, 10, 2, -2))
sketch9.addConstraint(Sketcher.Constraint("Parallel", 1, 4))
sketch9.addConstraint(Sketcher.Constraint("Parallel", 2, 5))
sketch9.addConstraint(Sketcher.Constraint("Parallel", 4, 7))
sketch9.addConstraint(Sketcher.Constraint("Parallel", 7, 10))
sketch9.addConstraint(Sketcher.Constraint("Parallel", 8, 11))
sketch9.addConstraint(Sketcher.Constraint("Horizontal", 0, 2, 2, 2))
sketch9.addConstraint(Sketcher.Constraint("Horizontal", 3, 2, 5, 2))
sketch9.addConstraint(Sketcher.Constraint("Angle", 1, Q("150.000004 deg")))
sketch9.addConstraint(Sketcher.Constraint("DistanceX", 0, 2, 6, 2, 11.0))
sketch9.addConstraint(Sketcher.Constraint("DistanceX", 2, 2, 0, 2, 5.5))
sketch9.addConstraint(Sketcher.Constraint("DistanceY", 0, 1, 0, 2, 3.175426))
sketch9.addConstraint(Sketcher.Constraint("DistanceY", -1, 1, 0, 2, 6.712713))
pocket8 = doc.addObject("PartDesign::Pocket", "Pocket007")
body.addObject(pocket8)
pocket8.Profile = sketch9
pocket8.Length = 2.5

# Sketch on XY plane
sketch10 = doc.addObject("Sketcher::SketchObject", "Sketch009")
body.addObject(sketch10)
sketch10.AttachmentSupport = (doc.XY_Plane, [""])
sketch10.MapMode = "FlatFace"
sketch10.AttachmentOffset = App.Placement(V(0, 0, -6), App.Rotation())
sketch10.addGeometry(Part.Circle(V(-7, 0, 0), V(0, 0, 1), 5), False)
sketch10.addGeometry(Part.Circle(V(7, 0, 0), V(0, 0, 1), 5), False)
sketch10.addConstraint(Sketcher.Constraint("Equal", 0, 1))
sketch10.addConstraint(Sketcher.Constraint("Symmetric", 0, 3, 1, 3, -1, 1))
sketch10.addConstraint(Sketcher.Constraint("PointOnObject", 0, 3, -1))
sketch10.addConstraint(Sketcher.Constraint("Diameter", 0, 10.0))
sketch10.addConstraint(Sketcher.Constraint("DistanceX", 0, 3, -1, 1, 7.4))
pocket9 = doc.addObject("PartDesign::Pocket", "Pocket008")
body.addObject(pocket9)
pocket9.Profile = sketch10
pocket9.Length = 4
pocket9.Reversed = True

doc.recompute()
